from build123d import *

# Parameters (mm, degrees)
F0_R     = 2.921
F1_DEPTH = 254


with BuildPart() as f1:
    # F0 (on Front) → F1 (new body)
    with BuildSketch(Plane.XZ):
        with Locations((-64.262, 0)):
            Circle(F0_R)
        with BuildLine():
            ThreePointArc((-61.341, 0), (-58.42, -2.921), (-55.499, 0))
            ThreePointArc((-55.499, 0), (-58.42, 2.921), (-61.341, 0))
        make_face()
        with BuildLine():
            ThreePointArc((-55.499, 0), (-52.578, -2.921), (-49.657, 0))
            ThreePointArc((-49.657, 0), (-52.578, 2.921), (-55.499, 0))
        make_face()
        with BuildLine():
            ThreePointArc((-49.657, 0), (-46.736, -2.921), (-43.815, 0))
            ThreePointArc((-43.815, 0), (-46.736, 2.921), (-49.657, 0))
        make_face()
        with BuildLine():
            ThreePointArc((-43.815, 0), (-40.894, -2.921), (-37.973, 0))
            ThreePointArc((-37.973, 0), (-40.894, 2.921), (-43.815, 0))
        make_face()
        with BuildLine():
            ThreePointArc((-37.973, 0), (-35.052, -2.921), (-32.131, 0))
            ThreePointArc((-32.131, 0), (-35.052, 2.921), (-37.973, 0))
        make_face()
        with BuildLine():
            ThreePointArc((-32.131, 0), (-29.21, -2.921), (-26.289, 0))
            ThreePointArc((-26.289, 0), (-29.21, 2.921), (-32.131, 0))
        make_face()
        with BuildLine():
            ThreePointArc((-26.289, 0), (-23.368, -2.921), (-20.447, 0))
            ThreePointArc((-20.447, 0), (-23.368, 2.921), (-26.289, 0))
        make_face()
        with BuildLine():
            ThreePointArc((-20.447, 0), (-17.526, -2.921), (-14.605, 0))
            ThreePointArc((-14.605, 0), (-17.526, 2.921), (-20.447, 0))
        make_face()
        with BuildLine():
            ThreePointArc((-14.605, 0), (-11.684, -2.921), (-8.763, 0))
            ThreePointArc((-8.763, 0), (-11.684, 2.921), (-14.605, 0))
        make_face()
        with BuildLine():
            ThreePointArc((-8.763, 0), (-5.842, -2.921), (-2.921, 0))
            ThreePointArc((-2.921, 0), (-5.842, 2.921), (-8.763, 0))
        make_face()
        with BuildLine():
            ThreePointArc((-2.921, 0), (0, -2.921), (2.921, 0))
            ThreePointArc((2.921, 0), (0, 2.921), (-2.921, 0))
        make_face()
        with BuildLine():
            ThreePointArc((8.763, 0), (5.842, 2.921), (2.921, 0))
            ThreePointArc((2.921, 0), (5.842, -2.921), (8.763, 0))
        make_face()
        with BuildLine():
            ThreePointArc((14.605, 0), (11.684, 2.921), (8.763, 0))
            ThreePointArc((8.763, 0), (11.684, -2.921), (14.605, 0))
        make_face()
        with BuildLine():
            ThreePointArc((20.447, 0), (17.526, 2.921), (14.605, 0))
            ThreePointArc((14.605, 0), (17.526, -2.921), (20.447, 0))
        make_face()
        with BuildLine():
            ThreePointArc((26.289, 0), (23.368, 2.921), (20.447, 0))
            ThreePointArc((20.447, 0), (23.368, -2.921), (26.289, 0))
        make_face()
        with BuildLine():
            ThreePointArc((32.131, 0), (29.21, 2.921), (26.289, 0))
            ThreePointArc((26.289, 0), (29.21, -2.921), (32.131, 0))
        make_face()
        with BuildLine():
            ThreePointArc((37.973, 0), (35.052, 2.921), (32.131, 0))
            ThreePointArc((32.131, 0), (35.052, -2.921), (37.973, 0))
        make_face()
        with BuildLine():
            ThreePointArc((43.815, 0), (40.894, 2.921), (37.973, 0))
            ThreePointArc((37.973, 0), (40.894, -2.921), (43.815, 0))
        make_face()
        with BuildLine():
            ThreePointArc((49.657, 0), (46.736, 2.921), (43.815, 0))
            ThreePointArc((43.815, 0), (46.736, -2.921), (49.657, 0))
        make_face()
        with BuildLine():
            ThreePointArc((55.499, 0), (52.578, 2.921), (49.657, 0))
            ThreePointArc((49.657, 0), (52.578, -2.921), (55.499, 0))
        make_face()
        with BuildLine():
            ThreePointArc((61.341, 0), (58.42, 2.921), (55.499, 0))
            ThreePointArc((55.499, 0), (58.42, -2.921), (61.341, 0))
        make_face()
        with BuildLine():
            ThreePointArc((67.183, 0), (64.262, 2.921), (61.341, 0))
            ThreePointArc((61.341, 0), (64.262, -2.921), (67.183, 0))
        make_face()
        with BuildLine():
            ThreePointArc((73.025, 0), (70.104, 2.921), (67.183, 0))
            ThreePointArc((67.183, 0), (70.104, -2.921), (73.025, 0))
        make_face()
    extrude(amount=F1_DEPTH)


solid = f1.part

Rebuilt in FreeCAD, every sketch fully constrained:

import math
import FreeCAD as App
import Part
import Sketcher

V = App.Vector
Q = App.Units.Quantity

doc = App.newDocument("Part")
body = doc.addObject("PartDesign::Body", "Body")
body.AllowCompound = True

# Sketch on XZ plane
sketch1 = body.newObject("Sketcher::SketchObject", "Sketch")
sketch1.AttachmentSupport = (doc.getObject("XZ_Plane"), [""])
sketch1.MapMode = "FlatFace"
sketch1.addGeometry(Part.Circle(V(-64.3, 0, 0), V(0, 0, 1), 2.9), False)
sketch1.addGeometry(Part.ArcOfCircle(Part.Circle(V(-58.4, 0, 0), V(0, 0, 1), 2.9), math.radians(180), math.radians(360)), False)
sketch1.addGeometry(Part.ArcOfCircle(Part.Circle(V(-58.4, 0, 0), V(0, 0, 1), 2.9), math.radians(0), math.radians(180)), False)
sketch1.addGeometry(Part.ArcOfCircle(Part.Circle(V(-52.6, 0, 0), V(0, 0, 1), 2.9), math.radians(180), math.radians(360)), False)
sketch1.addGeometry(Part.ArcOfCircle(Part.Circle(V(-52.6, 0, 0), V(0, 0, 1), 2.9), math.radians(0), math.radians(180)), False)
sketch1.addGeometry(Part.ArcOfCircle(Part.Circle(V(-46.7, 0, 0), V(0, 0, 1), 2.9), math.radians(-180), math.radians(0)), False)
sketch1.addGeometry(Part.ArcOfCircle(Part.Circle(V(-46.7, 0, 0), V(0, 0, 1), 2.9), math.radians(0), math.radians(180)), False)
sketch1.addGeometry(Part.ArcOfCircle(Part.Circle(V(-40.9, 0, 0), V(0, 0, 1), 2.9), math.radians(-180), math.radians(0)), False)
sketch1.addGeometry(Part.ArcOfCircle(Part.Circle(V(-40.9, 0, 0), V(0, 0, 1), 2.9), math.radians(0), math.radians(180)), False)
sketch1.addGeometry(Part.ArcOfCircle(Part.Circle(V(-35.1, 0, 0), V(0, 0, 1), 2.9), math.radians(-180), math.radians(0)), False)
sketch1.addGeometry(Part.ArcOfCircle(Part.Circle(V(-35.1, 0, 0), V(0, 0, 1), 2.9), math.radians(0), math.radians(180)), False)
sketch1.addGeometry(Part.ArcOfCircle(Part.Circle(V(-29.2, 0, 0), V(0, 0, 1), 2.9), math.radians(180), math.radians(360)), False)
sketch1.addGeometry(Part.ArcOfCircle(Part.Circle(V(-29.2, 0, 0), V(0, 0, 1), 2.9), math.radians(0), math.radians(180)), False)
sketch1.addGeometry(Part.ArcOfCircle(Part.Circle(V(-23.4, 0, 0), V(0, 0, 1), 2.9), math.radians(-180), math.radians(0)), False)
sketch1.addGeometry(Part.ArcOfCircle(Part.Circle(V(-23.4, 0, 0), V(0, 0, 1), 2.9), math.radians(0), math.radians(180)), False)
sketch1.addGeometry(Part.ArcOfCircle(Part.Circle(V(-17.5, 0, 0), V(0, 0, 1), 2.9), math.radians(-180), math.radians(0)), False)
sketch1.addGeometry(Part.ArcOfCircle(Part.Circle(V(-17.5, 0, 0), V(0, 0, 1), 2.9), math.radians(0), math.radians(180)), False)
sketch1.addGeometry(Part.ArcOfCircle(Part.Circle(V(-11.7, 0, 0), V(0, 0, 1), 2.9), math.radians(180), math.radians(360)), False)
sketch1.addGeometry(Part.ArcOfCircle(Part.Circle(V(-11.7, 0, 0), V(0, 0, 1), 2.9), math.radians(0), math.radians(180)), False)
sketch1.addGeometry(Part.ArcOfCircle(Part.Circle(V(-5.8, 0, 0), V(0, 0, 1), 2.9), math.radians(180), math.radians(360)), False)
sketch1.addGeometry(Part.ArcOfCircle(Part.Circle(V(-5.8, 0, 0), V(0, 0, 1), 2.9), math.radians(0), math.radians(180)), False)
sketch1.addGeometry(Part.ArcOfCircle(Part.Circle(V(0, 0, 0), V(0, 0, 1), 2.9), math.radians(180), math.radians(360)), False)
sketch1.addGeometry(Part.ArcOfCircle(Part.Circle(V(0, 0, 0), V(0, 0, 1), 2.9), math.radians(0), math.radians(180)), False)
sketch1.addGeometry(Part.ArcOfCircle(Part.Circle(V(5.8, 0, 0), V(0, 0, 1), 2.9), math.radians(180), math.radians(360)), False)
sketch1.addGeometry(Part.ArcOfCircle(Part.Circle(V(5.8, 0, 0), V(0, 0, 1), 2.9), math.radians(0), math.radians(180)), False)
sketch1.addGeometry(Part.ArcOfCircle(Part.Circle(V(11.7, 0, 0), V(0, 0, 1), 2.9), math.radians(180), math.radians(360)), False)
sketch1.addGeometry(Part.ArcOfCircle(Part.Circle(V(11.7, 0, 0), V(0, 0, 1), 2.9), math.radians(0), math.radians(180)), False)
sketch1.addGeometry(Part.ArcOfCircle(Part.Circle(V(17.5, 0, 0), V(0, 0, 1), 2.9), math.radians(180), math.radians(360)), False)
sketch1.addGeometry(Part.ArcOfCircle(Part.Circle(V(17.5, 0, 0), V(0, 0, 1), 2.9), math.radians(0), math.radians(180)), False)
sketch1.addGeometry(Part.ArcOfCircle(Part.Circle(V(23.4, 0, 0), V(0, 0, 1), 2.9), math.radians(180), math.radians(360)), False)
sketch1.addGeometry(Part.ArcOfCircle(Part.Circle(V(23.4, 0, 0), V(0, 0, 1), 2.9), math.radians(0), math.radians(180)), False)
sketch1.addGeometry(Part.ArcOfCircle(Part.Circle(V(29.2, 0, 0), V(0, 0, 1), 2.9), math.radians(180), math.radians(360)), False)
sketch1.addGeometry(Part.ArcOfCircle(Part.Circle(V(29.2, 0, 0), V(0, 0, 1), 2.9), math.radians(0), math.radians(180)), False)
sketch1.addGeometry(Part.ArcOfCircle(Part.Circle(V(35.1, 0, 0), V(0, 0, 1), 2.9), math.radians(180), math.radians(360)), False)
sketch1.addGeometry(Part.ArcOfCircle(Part.Circle(V(35.1, 0, 0), V(0, 0, 1), 2.9), math.radians(0), math.radians(180)), False)
sketch1.addGeometry(Part.ArcOfCircle(Part.Circle(V(40.9, 0, 0), V(0, 0, 1), 2.9), math.radians(180), math.radians(360)), False)
sketch1.addGeometry(Part.ArcOfCircle(Part.Circle(V(40.9, 0, 0), V(0, 0, 1), 2.9), math.radians(0), math.radians(180)), False)
sketch1.addGeometry(Part.ArcOfCircle(Part.Circle(V(46.7, 0, 0), V(0, 0, 1), 2.9), math.radians(180), math.radians(360)), False)
sketch1.addGeometry(Part.ArcOfCircle(Part.Circle(V(46.7, 0, 0), V(0, 0, 1), 2.9), math.radians(0), math.radians(180)), False)
sketch1.addGeometry(Part.ArcOfCircle(Part.Circle(V(52.6, 0, 0), V(0, 0, 1), 2.9), math.radians(180), math.radians(360)), False)
sketch1.addGeometry(Part.ArcOfCircle(Part.Circle(V(52.6, 0, 0), V(0, 0, 1), 2.9), math.radians(0), math.radians(180)), False)
sketch1.addGeometry(Part.ArcOfCircle(Part.Circle(V(58.4, 0, 0), V(0, 0, 1), 2.9), math.radians(180), math.radians(360)), False)
sketch1.addGeometry(Part.ArcOfCircle(Part.Circle(V(58.4, 0, 0), V(0, 0, 1), 2.9), math.radians(0), math.radians(180)), False)
sketch1.addGeometry(Part.ArcOfCircle(Part.Circle(V(64.3, 0, 0), V(0, 0, 1), 2.9), math.radians(180), math.radians(360)), False)
sketch1.addGeometry(Part.ArcOfCircle(Part.Circle(V(64.3, 0, 0), V(0, 0, 1), 2.9), math.radians(0), math.radians(180)), False)
sketch1.addGeometry(Part.Circle(V(70.1, 0, 0), V(0, 0, 1), 2.9), False)
sketch1.addConstraint(Sketcher.Constraint("Tangent", 1, 1, 2, 2))
sketch1.addConstraint(Sketcher.Constraint("Coincident", 2, 1, 1, 2))
sketch1.addConstraint(Sketcher.Constraint("Tangent", 3, 1, 4, 2))
sketch1.addConstraint(Sketcher.Constraint("Coincident", 4, 1, 3, 2))
sketch1.addConstraint(Sketcher.Constraint("Tangent", 5, 1, 6, 2))
sketch1.addConstraint(Sketcher.Constraint("Coincident", 6, 1, 5, 2))
sketch1.addConstraint(Sketcher.Constraint("Tangent", 7, 1, 8, 2))
sketch1.addConstraint(Sketcher.Constraint("Coincident", 8, 1, 7, 2))
sketch1.addConstraint(Sketcher.Constraint("Tangent", 9, 1, 10, 2))
sketch1.addConstraint(Sketcher.Constraint("Coincident", 10, 1, 9, 2))
sketch1.addConstraint(Sketcher.Constraint("Tangent", 11, 1, 12, 2))
sketch1.addConstraint(Sketcher.Constraint("Coincident", 12, 1, 11, 2))
sketch1.addConstraint(Sketcher.Constraint("Tangent", 13, 1, 14, 2))
sketch1.addConstraint(Sketcher.Constraint("Coincident", 14, 1, 13, 2))
sketch1.addConstraint(Sketcher.Constraint("Tangent", 15, 1, 16, 2))
sketch1.addConstraint(Sketcher.Constraint("Coincident", 16, 1, 15, 2))
sketch1.addConstraint(Sketcher.Constraint("Tangent", 17, 1, 18, 2))
sketch1.addConstraint(Sketcher.Constraint("Coincident", 18, 1, 17, 2))
sketch1.addConstraint(Sketcher.Constraint("Tangent", 19, 1, 20, 2))
sketch1.addConstraint(Sketcher.Constraint("Coincident", 20, 1, 19, 2))
sketch1.addConstraint(Sketcher.Constraint("Tangent", 21, 1, 22, 2))
sketch1.addConstraint(Sketcher.Constraint("Coincident", 22, 1, 21, 2))
sketch1.addConstraint(Sketcher.Constraint("Tangent", 23, 1, 24, 2))
sketch1.addConstraint(Sketcher.Constraint("Coincident", 24, 1, 23, 2))
sketch1.addConstraint(Sketcher.Constraint("Tangent", 25, 1, 26, 2))
sketch1.addConstraint(Sketcher.Constraint("Coincident", 26, 1, 25, 2))
sketch1.addConstraint(Sketcher.Constraint("Tangent", 27, 1, 28, 2))
sketch1.addConstraint(Sketcher.Constraint("Coincident", 28, 1, 27, 2))
sketch1.addConstraint(Sketcher.Constraint("Tangent", 29, 1, 30, 2))
sketch1.addConstraint(Sketcher.Constraint("Coincident", 30, 1, 29, 2))
sketch1.addConstraint(Sketcher.Constraint("Tangent", 31, 1, 32, 2))
sketch1.addConstraint(Sketcher.Constraint("Coincident", 32, 1, 31, 2))
sketch1.addConstraint(Sketcher.Constraint("Tangent", 33, 1, 34, 2))
sketch1.addConstraint(Sketcher.Constraint("Coincident", 34, 1, 33, 2))
sketch1.addConstraint(Sketcher.Constraint("Tangent", 35, 1, 36, 2))
sketch1.addConstraint(Sketcher.Constraint("Coincident", 36, 1, 35, 2))
sketch1.addConstraint(Sketcher.Constraint("Tangent", 37, 1, 38, 2))
sketch1.addConstraint(Sketcher.Constraint("Coincident", 38, 1, 37, 2))
sketch1.addConstraint(Sketcher.Constraint("Tangent", 39, 1, 40, 2))
sketch1.addConstraint(Sketcher.Constraint("Coincident", 40, 1, 39, 2))
sketch1.addConstraint(Sketcher.Constraint("Tangent", 41, 1, 42, 2))
sketch1.addConstraint(Sketcher.Constraint("Coincident", 42, 1, 41, 2))
sketch1.addConstraint(Sketcher.Constraint("Tangent", 43, 1, 44, 2))
sketch1.addConstraint(Sketcher.Constraint("Coincident", 44, 1, 43, 2))
sketch1.addConstraint(Sketcher.Constraint("Coincident", 21, 3, -1, 1))
sketch1.addConstraint(Sketcher.Constraint("Coincident", 3, 1, 2, 1))
sketch1.addConstraint(Sketcher.Constraint("Coincident", 5, 1, 4, 1))
sketch1.addConstraint(Sketcher.Constraint("Coincident", 7, 1, 6, 1))
sketch1.addConstraint(Sketcher.Constraint("Coincident", 9, 1, 8, 1))
sketch1.addConstraint(Sketcher.Constraint("Coincident", 11, 1, 10, 1))
sketch1.addConstraint(Sketcher.Constraint("Coincident", 13, 1, 12, 1))
sketch1.addConstraint(Sketcher.Constraint("Coincident", 15, 1, 14, 1))
sketch1.addConstraint(Sketcher.Constraint("Coincident", 17, 1, 16, 1))
sketch1.addConstraint(Sketcher.Constraint("Coincident", 19, 1, 18, 1))
sketch1.addConstraint(Sketcher.Constraint("Coincident", 21, 1, 20, 1))
sketch1.addConstraint(Sketcher.Constraint("Coincident", 23, 1, 22, 1))
sketch1.addConstraint(Sketcher.Constraint("Coincident", 25, 1, 24, 1))
sketch1.addConstraint(Sketcher.Constraint("Coincident", 27, 1, 26, 1))
sketch1.addConstraint(Sketcher.Constraint("Coincident", 29, 1, 28, 1))
sketch1.addConstraint(Sketcher.Constraint("Coincident", 31, 1, 30, 1))
sketch1.addConstraint(Sketcher.Constraint("Coincident", 33, 1, 32, 1))
sketch1.addConstraint(Sketcher.Constraint("Coincident", 35, 1, 34, 1))
sketch1.addConstraint(Sketcher.Constraint("Coincident", 37, 1, 36, 1))
sketch1.addConstraint(Sketcher.Constraint("Coincident", 39, 1, 38, 1))
sketch1.addConstraint(Sketcher.Constraint("Coincident", 41, 1, 40, 1))
sketch1.addConstraint(Sketcher.Constraint("Coincident", 43, 1, 42, 1))
sketch1.addConstraint(Sketcher.Constraint("Equal", 0, 1))
sketch1.addConstraint(Sketcher.Constraint("Equal", 2, 3))
sketch1.addConstraint(Sketcher.Constraint("Equal", 4, 5))
sketch1.addConstraint(Sketcher.Constraint("Equal", 6, 7))
sketch1.addConstraint(Sketcher.Constraint("Equal", 8, 9))
sketch1.addConstraint(Sketcher.Constraint("Equal", 10, 11))
sketch1.addConstraint(Sketcher.Constraint("Equal", 12, 13))
sketch1.addConstraint(Sketcher.Constraint("Equal", 14, 15))
sketch1.addConstraint(Sketcher.Constraint("Equal", 16, 17))
sketch1.addConstraint(Sketcher.Constraint("Equal", 18, 19))
sketch1.addConstraint(Sketcher.Constraint("Equal", 20, 21))
sketch1.addConstraint(Sketcher.Constraint("Equal", 22, 23))
sketch1.addConstraint(Sketcher.Constraint("Equal", 24, 25))
sketch1.addConstraint(Sketcher.Constraint("Equal", 26, 27))
sketch1.addConstraint(Sketcher.Constraint("Equal", 28, 29))
sketch1.addConstraint(Sketcher.Constraint("Equal", 30, 31))
sketch1.addConstraint(Sketcher.Constraint("Equal", 32, 33))
sketch1.addConstraint(Sketcher.Constraint("Equal", 34, 35))
sketch1.addConstraint(Sketcher.Constraint("Equal", 36, 37))
sketch1.addConstraint(Sketcher.Constraint("Equal", 38, 39))
sketch1.addConstraint(Sketcher.Constraint("Equal", 40, 41))
sketch1.addConstraint(Sketcher.Constraint("Equal", 42, 43))
sketch1.addConstraint(Sketcher.Constraint("Equal", 44, 45))
sketch1.addConstraint(Sketcher.Constraint("Symmetric", 0, 3, 43, 3, -1, 1))
sketch1.addConstraint(Sketcher.Constraint("PointOnObject", 0, 3, -1))
sketch1.addConstraint(Sketcher.Constraint("PointOnObject", 1, 3, -1))
sketch1.addConstraint(Sketcher.Constraint("PointOnObject", 3, 3, -1))
sketch1.addConstraint(Sketcher.Constraint("PointOnObject", 5, 3, -1))
sketch1.addConstraint(Sketcher.Constraint("PointOnObject", 7, 3, -1))
sketch1.addConstraint(Sketcher.Constraint("PointOnObject", 9, 3, -1))
sketch1.addConstraint(Sketcher.Constraint("PointOnObject", 11, 3, -1))
sketch1.addConstraint(Sketcher.Constraint("PointOnObject", 13, 3, -1))
sketch1.addConstraint(Sketcher.Constraint("PointOnObject", 15, 3, -1))
sketch1.addConstraint(Sketcher.Constraint("PointOnObject", 17, 3, -1))
sketch1.addConstraint(Sketcher.Constraint("PointOnObject", 19, 3, -1))
sketch1.addConstraint(Sketcher.Constraint("PointOnObject", 23, 3, -1))
sketch1.addConstraint(Sketcher.Constraint("PointOnObject", 25, 3, -1))
sketch1.addConstraint(Sketcher.Constraint("PointOnObject", 27, 3, -1))
sketch1.addConstraint(Sketcher.Constraint("PointOnObject", 29, 3, -1))
sketch1.addConstraint(Sketcher.Constraint("PointOnObject", 31, 3, -1))
sketch1.addConstraint(Sketcher.Constraint("PointOnObject", 33, 3, -1))
sketch1.addConstraint(Sketcher.Constraint("PointOnObject", 35, 3, -1))
sketch1.addConstraint(Sketcher.Constraint("PointOnObject", 37, 3, -1))
sketch1.addConstraint(Sketcher.Constraint("PointOnObject", 39, 3, -1))
sketch1.addConstraint(Sketcher.Constraint("PointOnObject", 41, 3, -1))
sketch1.addConstraint(Sketcher.Constraint("PointOnObject", 45, 3, -1))
sketch1.addConstraint(Sketcher.Constraint("PointOnObject", 1, 1, -1))
sketch1.addConstraint(Sketcher.Constraint("PointOnObject", 2, 1, -1))
sketch1.addConstraint(Sketcher.Constraint("PointOnObject", 4, 1, -1))
sketch1.addConstraint(Sketcher.Constraint("PointOnObject", 6, 1, -1))
sketch1.addConstraint(Sketcher.Constraint("PointOnObject", 8, 1, -1))
sketch1.addConstraint(Sketcher.Constraint("PointOnObject", 10, 1, -1))
sketch1.addConstraint(Sketcher.Constraint("PointOnObject", 12, 1, -1))
sketch1.addConstraint(Sketcher.Constraint("PointOnObject", 14, 1, -1))
sketch1.addConstraint(Sketcher.Constraint("PointOnObject", 16, 1, -1))
sketch1.addConstraint(Sketcher.Constraint("PointOnObject", 18, 1, -1))
sketch1.addConstraint(Sketcher.Constraint("PointOnObject", 20, 1, -1))
sketch1.addConstraint(Sketcher.Constraint("PointOnObject", 22, 1, -1))
sketch1.addConstraint(Sketcher.Constraint("PointOnObject", 24, 1, -1))
sketch1.addConstraint(Sketcher.Constraint("PointOnObject", 26, 1, -1))
sketch1.addConstraint(Sketcher.Constraint("PointOnObject", 28, 1, -1))
sketch1.addConstraint(Sketcher.Constraint("PointOnObject", 30, 1, -1))
sketch1.addConstraint(Sketcher.Constraint("PointOnObject", 32, 1, -1))
sketch1.addConstraint(Sketcher.Constraint("PointOnObject", 34, 1, -1))
sketch1.addConstraint(Sketcher.Constraint("PointOnObject", 36, 1, -1))
sketch1.addConstraint(Sketcher.Constraint("PointOnObject", 38, 1, -1))
sketch1.addConstraint(Sketcher.Constraint("PointOnObject", 40, 1, -1))
sketch1.addConstraint(Sketcher.Constraint("PointOnObject", 42, 1, -1))
sketch1.addConstraint(Sketcher.Constraint("PointOnObject", 44, 1, -1))
sketch1.addConstraint(Sketcher.Constraint("Diameter", 0, Q("0.23 in")))
sketch1.addConstraint(Sketcher.Constraint("DistanceX", -1, 1, 45, 3, Q("2.76 in")))
pad1 = body.newObject("PartDesign::Pad", "Pad")
pad1.Profile = sketch1
pad1.Length = Q("10 in")

doc.recompute()
